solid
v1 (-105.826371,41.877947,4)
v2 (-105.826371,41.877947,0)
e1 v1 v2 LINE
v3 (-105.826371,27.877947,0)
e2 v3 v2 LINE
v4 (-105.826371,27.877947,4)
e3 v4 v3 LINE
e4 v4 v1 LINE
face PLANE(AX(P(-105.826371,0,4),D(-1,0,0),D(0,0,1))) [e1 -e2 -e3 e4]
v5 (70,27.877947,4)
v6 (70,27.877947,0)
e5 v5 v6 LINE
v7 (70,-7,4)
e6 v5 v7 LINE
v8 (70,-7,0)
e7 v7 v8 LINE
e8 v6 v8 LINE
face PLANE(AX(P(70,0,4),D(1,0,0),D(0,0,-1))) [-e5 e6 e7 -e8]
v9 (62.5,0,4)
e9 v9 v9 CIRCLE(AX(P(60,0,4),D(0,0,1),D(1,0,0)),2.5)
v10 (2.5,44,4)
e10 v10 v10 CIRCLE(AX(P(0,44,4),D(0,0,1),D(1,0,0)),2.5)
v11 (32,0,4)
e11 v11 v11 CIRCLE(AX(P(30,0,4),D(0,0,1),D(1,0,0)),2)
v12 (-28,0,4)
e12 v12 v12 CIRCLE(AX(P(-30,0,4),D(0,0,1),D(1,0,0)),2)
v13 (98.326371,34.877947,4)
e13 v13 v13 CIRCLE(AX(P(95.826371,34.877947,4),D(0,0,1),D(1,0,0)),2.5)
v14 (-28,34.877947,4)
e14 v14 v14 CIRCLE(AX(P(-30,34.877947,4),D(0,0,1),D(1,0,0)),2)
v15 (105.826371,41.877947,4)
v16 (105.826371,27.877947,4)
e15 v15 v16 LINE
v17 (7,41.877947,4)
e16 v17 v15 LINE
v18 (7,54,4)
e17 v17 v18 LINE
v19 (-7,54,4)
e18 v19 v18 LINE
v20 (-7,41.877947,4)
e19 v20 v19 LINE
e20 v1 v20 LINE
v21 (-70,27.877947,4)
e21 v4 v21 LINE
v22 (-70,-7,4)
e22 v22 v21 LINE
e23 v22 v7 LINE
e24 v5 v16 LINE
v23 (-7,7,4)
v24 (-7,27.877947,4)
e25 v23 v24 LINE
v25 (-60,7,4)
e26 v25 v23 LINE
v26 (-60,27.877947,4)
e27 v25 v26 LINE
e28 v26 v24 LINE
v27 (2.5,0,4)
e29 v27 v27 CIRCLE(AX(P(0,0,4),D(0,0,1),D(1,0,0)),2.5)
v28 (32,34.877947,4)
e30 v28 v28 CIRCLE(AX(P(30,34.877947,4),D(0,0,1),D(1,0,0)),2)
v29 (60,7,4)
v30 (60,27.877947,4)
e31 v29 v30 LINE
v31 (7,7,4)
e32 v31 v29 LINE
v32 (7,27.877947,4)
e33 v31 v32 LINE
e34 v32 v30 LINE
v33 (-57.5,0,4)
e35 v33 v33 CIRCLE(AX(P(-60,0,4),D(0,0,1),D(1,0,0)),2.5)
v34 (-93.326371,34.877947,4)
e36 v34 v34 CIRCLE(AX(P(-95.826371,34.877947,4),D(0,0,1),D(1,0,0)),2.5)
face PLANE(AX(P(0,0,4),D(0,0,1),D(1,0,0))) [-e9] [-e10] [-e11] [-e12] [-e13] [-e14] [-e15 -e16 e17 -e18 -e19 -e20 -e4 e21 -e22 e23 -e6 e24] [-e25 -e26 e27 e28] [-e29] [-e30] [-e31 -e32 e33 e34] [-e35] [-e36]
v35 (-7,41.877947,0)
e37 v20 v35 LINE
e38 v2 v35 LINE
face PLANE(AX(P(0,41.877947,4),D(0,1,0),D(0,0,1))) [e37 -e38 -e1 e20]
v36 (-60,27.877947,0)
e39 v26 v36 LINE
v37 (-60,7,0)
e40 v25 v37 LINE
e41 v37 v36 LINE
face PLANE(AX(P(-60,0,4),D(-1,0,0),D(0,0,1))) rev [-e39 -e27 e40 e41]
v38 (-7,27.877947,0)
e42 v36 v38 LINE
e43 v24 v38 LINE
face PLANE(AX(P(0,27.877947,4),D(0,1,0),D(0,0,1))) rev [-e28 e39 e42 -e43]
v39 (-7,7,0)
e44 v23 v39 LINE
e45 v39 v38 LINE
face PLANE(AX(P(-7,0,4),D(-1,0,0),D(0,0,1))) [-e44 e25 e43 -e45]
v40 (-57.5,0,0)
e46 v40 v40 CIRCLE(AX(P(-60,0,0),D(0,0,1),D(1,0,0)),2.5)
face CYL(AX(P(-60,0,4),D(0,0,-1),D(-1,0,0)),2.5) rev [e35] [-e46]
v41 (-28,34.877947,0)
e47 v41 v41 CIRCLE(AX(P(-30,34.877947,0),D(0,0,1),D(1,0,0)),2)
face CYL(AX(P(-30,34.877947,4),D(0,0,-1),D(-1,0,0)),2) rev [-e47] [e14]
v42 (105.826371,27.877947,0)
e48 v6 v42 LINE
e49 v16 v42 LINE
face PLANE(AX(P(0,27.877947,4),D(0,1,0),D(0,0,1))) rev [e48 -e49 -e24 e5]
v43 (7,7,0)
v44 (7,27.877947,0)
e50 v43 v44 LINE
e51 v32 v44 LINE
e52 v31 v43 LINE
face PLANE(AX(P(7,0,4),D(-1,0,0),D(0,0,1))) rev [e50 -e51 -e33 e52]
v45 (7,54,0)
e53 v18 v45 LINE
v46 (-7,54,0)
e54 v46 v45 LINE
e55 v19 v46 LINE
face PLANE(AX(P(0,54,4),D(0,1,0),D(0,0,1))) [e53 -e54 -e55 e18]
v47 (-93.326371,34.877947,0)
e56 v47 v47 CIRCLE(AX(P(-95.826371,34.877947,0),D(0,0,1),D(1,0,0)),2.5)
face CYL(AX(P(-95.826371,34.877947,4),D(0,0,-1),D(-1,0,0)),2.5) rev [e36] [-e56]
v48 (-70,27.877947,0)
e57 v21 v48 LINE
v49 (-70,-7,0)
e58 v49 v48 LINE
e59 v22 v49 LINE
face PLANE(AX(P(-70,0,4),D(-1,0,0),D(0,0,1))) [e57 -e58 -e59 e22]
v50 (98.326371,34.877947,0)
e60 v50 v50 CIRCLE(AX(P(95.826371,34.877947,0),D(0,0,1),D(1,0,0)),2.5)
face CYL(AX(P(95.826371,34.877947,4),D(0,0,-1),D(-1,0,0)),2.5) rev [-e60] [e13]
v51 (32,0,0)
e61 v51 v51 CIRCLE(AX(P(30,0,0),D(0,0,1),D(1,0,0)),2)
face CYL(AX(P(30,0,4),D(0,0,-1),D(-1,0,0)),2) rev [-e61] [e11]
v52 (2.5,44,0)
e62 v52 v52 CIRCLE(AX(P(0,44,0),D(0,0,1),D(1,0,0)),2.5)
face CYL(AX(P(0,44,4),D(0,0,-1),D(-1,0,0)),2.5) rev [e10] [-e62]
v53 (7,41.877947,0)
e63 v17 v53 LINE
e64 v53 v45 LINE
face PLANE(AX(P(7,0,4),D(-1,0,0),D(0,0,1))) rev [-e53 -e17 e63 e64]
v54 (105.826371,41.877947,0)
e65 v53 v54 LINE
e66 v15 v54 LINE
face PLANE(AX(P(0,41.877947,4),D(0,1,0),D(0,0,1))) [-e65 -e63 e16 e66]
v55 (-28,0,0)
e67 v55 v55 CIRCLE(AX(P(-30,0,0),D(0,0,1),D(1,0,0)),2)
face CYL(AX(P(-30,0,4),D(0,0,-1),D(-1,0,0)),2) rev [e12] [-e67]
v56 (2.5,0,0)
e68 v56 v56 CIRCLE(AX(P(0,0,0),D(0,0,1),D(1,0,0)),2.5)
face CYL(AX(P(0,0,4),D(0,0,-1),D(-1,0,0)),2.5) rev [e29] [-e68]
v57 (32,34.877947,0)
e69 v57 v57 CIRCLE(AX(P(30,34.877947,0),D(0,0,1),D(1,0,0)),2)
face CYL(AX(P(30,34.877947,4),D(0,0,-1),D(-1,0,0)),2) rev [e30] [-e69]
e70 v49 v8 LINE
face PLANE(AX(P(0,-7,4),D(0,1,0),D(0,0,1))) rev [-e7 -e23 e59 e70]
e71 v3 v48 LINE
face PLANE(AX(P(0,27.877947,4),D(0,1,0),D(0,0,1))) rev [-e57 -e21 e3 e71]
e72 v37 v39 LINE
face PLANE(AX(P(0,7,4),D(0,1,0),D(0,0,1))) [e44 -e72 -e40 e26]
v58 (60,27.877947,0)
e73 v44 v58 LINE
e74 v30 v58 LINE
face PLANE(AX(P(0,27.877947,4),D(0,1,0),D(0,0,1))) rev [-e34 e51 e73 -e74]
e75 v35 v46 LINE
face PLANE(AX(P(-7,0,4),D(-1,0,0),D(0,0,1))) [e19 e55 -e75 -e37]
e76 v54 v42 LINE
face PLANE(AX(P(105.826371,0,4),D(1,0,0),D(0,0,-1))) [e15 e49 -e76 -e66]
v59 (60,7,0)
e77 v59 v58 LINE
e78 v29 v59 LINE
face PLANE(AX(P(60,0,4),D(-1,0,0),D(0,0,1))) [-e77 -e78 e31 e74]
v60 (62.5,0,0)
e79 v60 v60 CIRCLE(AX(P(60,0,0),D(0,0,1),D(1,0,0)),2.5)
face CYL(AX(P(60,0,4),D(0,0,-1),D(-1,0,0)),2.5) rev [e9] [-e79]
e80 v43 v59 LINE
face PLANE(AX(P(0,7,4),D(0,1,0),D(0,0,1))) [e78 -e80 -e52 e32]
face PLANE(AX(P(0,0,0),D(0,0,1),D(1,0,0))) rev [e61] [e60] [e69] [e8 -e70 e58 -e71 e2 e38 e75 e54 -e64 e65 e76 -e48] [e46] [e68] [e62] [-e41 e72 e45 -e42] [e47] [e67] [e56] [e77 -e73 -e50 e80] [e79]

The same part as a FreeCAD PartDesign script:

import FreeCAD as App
import Part
import Sketcher
from FreeCAD import Vector
Q = App.Units.Quantity

doc = App.newDocument("Part")
body = doc.addObject("PartDesign::Body", "Body")

sketch1 = body.newObject("Sketcher::SketchObject", "Sketch")
sketch1.AttachmentSupport = (doc.getObject("XY_Plane"), [""])
sketch1.MapMode = "FlatFace"
sketch1.addGeometry(Part.LineSegment(Vector(-105.826371, 27.877947, 0), Vector(-70, 27.877947, 0)), False)
sketch1.addGeometry(Part.LineSegment(Vector(-70, 27.877947, 0), Vector(-70, -7, 0)), False)
sketch1.addGeometry(Part.LineSegment(Vector(-70, -7, 0), Vector(70, -7, 0)), False)
sketch1.addGeometry(Part.LineSegment(Vector(70, -7, 0), Vector(70, 27.877947, 0)), False)
sketch1.addGeometry(Part.LineSegment(Vector(70, 27.877947, 0), Vector(105.826371, 27.877947, 0)), False)
sketch1.addGeometry(Part.LineSegment(Vector(105.826371, 27.877947, 0), Vector(105.826371, 41.877947, 0)), False)
sketch1.addGeometry(Part.LineSegment(Vector(105.826371, 41.877947, 0), Vector(7, 41.877947, 0)), False)
sketch1.addGeometry(Part.LineSegment(Vector(7, 41.877947, 0), Vector(7, 54, 0)), False)
sketch1.addGeometry(Part.LineSegment(Vector(7, 54, 0), Vector(-7, 54, 0)), False)
sketch1.addGeometry(Part.LineSegment(Vector(-7, 54, 0), Vector(-7, 41.877947, 0)), False)
sketch1.addGeometry(Part.LineSegment(Vector(-7, 41.877947, 0), Vector(-105.826371, 41.877947, 0)), False)
sketch1.addGeometry(Part.LineSegment(Vector(-105.826371, 41.877947, 0), Vector(-105.826371, 27.877947, 0)), False)
sketch1.addGeometry(Part.LineSegment(Vector(-60, 27.877947, 0), Vector(-7, 27.877947, 0)), False)
sketch1.addGeometry(Part.LineSegment(Vector(-7, 27.877947, 0), Vector(-7, 7, 0)), False)
sketch1.addGeometry(Part.LineSegment(Vector(-7, 7, 0), Vector(-60, 7, 0)), False)
sketch1.addGeometry(Part.LineSegment(Vector(-60, 7, 0), Vector(-60, 27.877947, 0)), False)
sketch1.addGeometry(Part.Circle(Vector(-95.826371, 34.877947, 0), Vector(0, 0, 1), 2.5), False)
sketch1.addGeometry(Part.Circle(Vector(-30, 34.877947, 0), Vector(0, 0, 1), 2), False)
sketch1.addGeometry(Part.Circle(Vector(0, 44, 0), Vector(0, 0, 1), 2.5), False)
sketch1.addGeometry(Part.LineSegment(Vector(7, 7, 0), Vector(7, 27.877947, 0)), False)
sketch1.addGeometry(Part.LineSegment(Vector(7, 27.877947, 0), Vector(60, 27.877947, 0)), False)
sketch1.addGeometry(Part.LineSegment(Vector(60, 27.877947, 0), Vector(60, 7, 0)), False)
sketch1.addGeometry(Part.LineSegment(Vector(60, 7, 0), Vector(7, 7, 0)), False)
sketch1.addGeometry(Part.Circle(Vector(60, 0, 0), Vector(0, 0, 1), 2.5), False)
sketch1.addGeometry(Part.Circle(Vector(30, 0, 0), Vector(0, 0, 1), 2), False)
sketch1.addGeometry(Part.Circle(Vector(-60, 0, 0), Vector(0, 0, 1), 2.5), False)
sketch1.addGeometry(Part.Circle(Vector(-30, 0, 0), Vector(0, 0, 1), 2), False)
sketch1.addGeometry(Part.Circle(Vector(0, 0, 0), Vector(0, 0, 1), 2.5), False)
sketch1.addGeometry(Part.Circle(Vector(95.826371, 34.877947, 0), Vector(0, 0, 1), 2.5), False)
sketch1.addGeometry(Part.Circle(Vector(30, 34.877947, 0), Vector(0, 0, 1), 2), False)
sketch1.addConstraint(Sketcher.Constraint("Coincident", 0, 2, 1, 1))
sketch1.addConstraint(Sketcher.Constraint("Coincident", 1, 2, 2, 1))
sketch1.addConstraint(Sketcher.Constraint("Coincident", 2, 2, 3, 1))
sketch1.addConstraint(Sketcher.Constraint("Coincident", 3, 2, 4, 1))
sketch1.addConstraint(Sketcher.Constraint("Coincident", 4, 2, 5, 1))
sketch1.addConstraint(Sketcher.Constraint("Coincident", 5, 2, 6, 1))
sketch1.addConstraint(Sketcher.Constraint("Coincident", 6, 2, 7, 1))
sketch1.addConstraint(Sketcher.Constraint("Coincident", 7, 2, 8, 1))
sketch1.addConstraint(Sketcher.Constraint("Coincident", 8, 2, 9, 1))
sketch1.addConstraint(Sketcher.Constraint("Coincident", 9, 2, 10, 1))
sketch1.addConstraint(Sketcher.Constraint("Coincident", 10, 2, 11, 1))
sketch1.addConstraint(Sketcher.Constraint("Coincident", 11, 2, 0, 1))
sketch1.addConstraint(Sketcher.Constraint("Coincident", 12, 2, 13, 1))
sketch1.addConstraint(Sketcher.Constraint("Coincident", 13, 2, 14, 1))
sketch1.addConstraint(Sketcher.Constraint("Coincident", 14, 2, 15, 1))
sketch1.addConstraint(Sketcher.Constraint("Coincident", 15, 2, 12, 1))
sketch1.addConstraint(Sketcher.Constraint("Coincident", 19, 2, 20, 1))
sketch1.addConstraint(Sketcher.Constraint("Coincident", 20, 2, 21, 1))
sketch1.addConstraint(Sketcher.Constraint("Coincident", 21, 2, 22, 1))
sketch1.addConstraint(Sketcher.Constraint("Coincident", 22, 2, 19, 1))
sketch1.addConstraint(Sketcher.Constraint("Horizontal", 0))
sketch1.addConstraint(Sketcher.Constraint("Vertical", 1))
sketch1.addConstraint(Sketcher.Constraint("Horizontal", 2))
sketch1.addConstraint(Sketcher.Constraint("Vertical", 3))
sketch1.addConstraint(Sketcher.Constraint("Horizontal", 4))
sketch1.addConstraint(Sketcher.Constraint("Vertical", 5))
sketch1.addConstraint(Sketcher.Constraint("Horizontal", 6))
sketch1.addConstraint(Sketcher.Constraint("Vertical", 7))
sketch1.addConstraint(Sketcher.Constraint("Horizontal", 8))
sketch1.addConstraint(Sketcher.Constraint("Vertical", 9))
sketch1.addConstraint(Sketcher.Constraint("Horizontal", 10))
sketch1.addConstraint(Sketcher.Constraint("Vertical", 11))
sketch1.addConstraint(Sketcher.Constraint("Horizontal", 12))
sketch1.addConstraint(Sketcher.Constraint("Vertical", 13))
sketch1.addConstraint(Sketcher.Constraint("Horizontal", 14))
sketch1.addConstraint(Sketcher.Constraint("Vertical", 15))
sketch1.addConstraint(Sketcher.Constraint("Vertical", 19))
sketch1.addConstraint(Sketcher.Constraint("Horizontal", 20))
sketch1.addConstraint(Sketcher.Constraint("Vertical", 21))
sketch1.addConstraint(Sketcher.Constraint("Horizontal", 22))
sketch1.addConstraint(Sketcher.Constraint("Coincident", 27, 3, -1, 1))
sketch1.addConstraint(Sketcher.Constraint("Equal", 16, 18))
sketch1.addConstraint(Sketcher.Constraint("Equal", 18, 23))
sketch1.addConstraint(Sketcher.Constraint("Equal", 17, 24))
sketch1.addConstraint(Sketcher.Constraint("Equal", 23, 25))
sketch1.addConstraint(Sketcher.Constraint("Equal", 24, 26))
sketch1.addConstraint(Sketcher.Constraint("Equal", 25, 27))
sketch1.addConstraint(Sketcher.Constraint("Equal", 27, 28))
sketch1.addConstraint(Sketcher.Constraint("Equal", 26, 29))
sketch1.addConstraint(Sketcher.Constraint("Symmetric", 23, 3, 25, 3, -1, 1))
sketch1.addConstraint(Sketcher.Constraint("Symmetric", 24, 3, 26, 3, -1, 1))
sketch1.addConstraint(Sketcher.Constraint("Symmetric", 16, 3, 28, 3, -2))
sketch1.addConstraint(Sketcher.Constraint("Symmetric", 17, 3, 29, 3, -2))
sketch1.addConstraint(Sketcher.Constraint("Symmetric", 0, 2, 3, 2, -2))
sketch1.addConstraint(Sketcher.Constraint("Symmetric", 6, 2, 9, 2, -2))
sketch1.addConstraint(Sketcher.Constraint("Symmetric", 12, 2, 19, 2, -2))
sketch1.addConstraint(Sketcher.Constraint("Symmetric", 14, 2, 21, 2, -2))
sketch1.addConstraint(Sketcher.Constraint("PointOnObject", 18, 3, -2))
sketch1.addConstraint(Sketcher.Constraint("PointOnObject", 23, 3, -1))
sketch1.addConstraint(Sketcher.Constraint("PointOnObject", 24, 3, -1))
sketch1.addConstraint(Sketcher.Constraint("Horizontal", 16, 3, 17, 3))
sketch1.addConstraint(Sketcher.Constraint("Horizontal", 11, 2, 12, 2))
sketch1.addConstraint(Sketcher.Constraint("Vertical", 17, 3, 26, 3))
sketch1.addConstraint(Sketcher.Constraint("Vertical", 9, 2, 12, 2))
sketch1.addConstraint(Sketcher.Constraint("Vertical", 25, 3, 14, 2))
sketch1.addConstraint(Sketcher.Constraint("Equal", 0, 4))
sketch1.addConstraint(Sketcher.Constraint("Equal", 8, 5))
sketch1.addConstraint(Sketcher.Constraint("Diameter", 16, Q("5 mm")))
sketch1.addConstraint(Sketcher.Constraint("Diameter", 17, Q("4 mm")))
sketch1.addConstraint(Sketcher.Constraint("DistanceX", 2, 1, 2, 2, Q("140 mm")))
sketch1.addConstraint(Sketcher.Constraint("DistanceX", 8, 2, 8, 1, Q("14 mm")))
sketch1.addConstraint(Sketcher.Constraint("DistanceX", 12, 1, 12, 2, Q("53 mm")))
sketch1.addConstraint(Sketcher.Constraint("DistanceX", 17, 3, -1, 1, Q("30 mm")))
sketch1.addConstraint(Sketcher.Constraint("DistanceY", -1, 1, 18, 3, Q("44 mm")))
sketch1.addConstraint(Sketcher.Constraint("DistanceY", 1, 2, -1, 1, Q("7 mm")))
sketch1.addConstraint(Sketcher.Constraint("DistanceY", -1, 1, 7, 2, Q("54 mm")))
sketch1.addConstraint(Sketcher.Constraint("DistanceY", -1, 1, 13, 2, Q("7 mm")))
sketch1.addConstraint(Sketcher.Constraint("DistanceY", 0, 2, 16, 3, Q("7 mm")))
sketch1.addConstraint(Sketcher.Constraint("DistanceX", 28, 3, 4, 2, Q("10 mm")))
sketch1.addConstraint(Sketcher.Constraint("DistanceX", 0, 1, 0, 2, Q("35.826371 mm")))
sketch1.addConstraint(Sketcher.Constraint("DistanceY", 1, 2, 1, 1, Q("34.877947 mm")))
pad1 = body.newObject("PartDesign::Pad", "Pad")
pad1.Profile = sketch1
pad1.Length = 4

doc.recompute()
